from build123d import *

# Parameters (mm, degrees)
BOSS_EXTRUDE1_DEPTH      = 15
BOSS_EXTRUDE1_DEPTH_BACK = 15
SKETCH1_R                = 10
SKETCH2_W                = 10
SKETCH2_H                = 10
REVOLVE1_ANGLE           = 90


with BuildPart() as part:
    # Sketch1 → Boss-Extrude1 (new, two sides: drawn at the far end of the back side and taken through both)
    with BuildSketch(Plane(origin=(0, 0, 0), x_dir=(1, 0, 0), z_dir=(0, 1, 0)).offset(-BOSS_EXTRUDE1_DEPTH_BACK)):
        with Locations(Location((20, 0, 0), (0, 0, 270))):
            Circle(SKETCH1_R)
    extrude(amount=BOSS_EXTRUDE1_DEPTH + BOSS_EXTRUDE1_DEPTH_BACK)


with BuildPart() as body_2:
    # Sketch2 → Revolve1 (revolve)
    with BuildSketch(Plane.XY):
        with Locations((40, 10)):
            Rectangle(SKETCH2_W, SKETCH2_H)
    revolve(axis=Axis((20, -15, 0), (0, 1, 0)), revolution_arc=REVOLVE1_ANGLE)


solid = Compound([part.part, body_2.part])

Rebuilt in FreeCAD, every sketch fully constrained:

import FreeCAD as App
import Part
import Sketcher
from FreeCAD import Vector


def add_polygon(sketch, points):
    """Adds a closed chain of lines whose ends are joined by coincident constraints."""
    first, n = sketch.GeometryCount, len(points)
    for a, b in zip(points, points[1:] + points[:1]):
        sketch.addGeometry(Part.LineSegment(App.Vector(*a, 0), App.Vector(*b, 0)), False)
    for i in range(n):
        sketch.addConstraint(Sketcher.Constraint("Coincident", first + i, 2, first + (i + 1) % n, 1))

doc = App.newDocument("Part")
params = doc.addObject("Spreadsheet::Sheet", "Params")
for row, (alias, value) in enumerate([
    ("sketch1_diameter", "20 mm"),
    ("pad1_length", "15 mm"),
    ("pad1_length2", "15 mm"),
    ("sketch2_width", "10 mm"),
    ("revolution_angle", "90 deg"),
], start=1):
    params.set(f"A{row}", alias)
    params.set(f"B{row}", "=" + value)
    params.setAlias(f"B{row}", alias)

body = doc.addObject("PartDesign::Body", "Body")

sketch1 = doc.addObject("Sketcher::SketchObject", "Sketch")
body.addObject(sketch1)
sketch1.AttachmentSupport = (doc.XZ_Plane, [""])
sketch1.MapMode = "FlatFace"
sketch1.addGeometry(Part.Circle(Vector(20, 0, 0), Vector(0, 0, 1), 10), False)
sketch1.addConstraint([
    Sketcher.Constraint("PointOnObject", 0, 3, -1),
    Sketcher.Constraint("Diameter", 0, 20.0),
    Sketcher.Constraint("DistanceX", -1, 1, 0, 3, 20.0),
])
sketch1.setExpression("Constraints[1]", "Params.sketch1_diameter")
pad1 = doc.addObject("PartDesign::Pad", "Pad")
body.addObject(pad1)
pad1.Profile = sketch1
pad1.Type = "TwoLengths"
pad1.setExpression("Length", "Params.pad1_length")
pad1.setExpression("Length2", "Params.pad1_length2")
pad1.Reversed = True
body2 = doc.addObject("PartDesign::Body", "Body001")

sketch2 = doc.addObject("Sketcher::SketchObject", "Sketch001")
body2.addObject(sketch2)
sketch2.AttachmentSupport = (doc.getObject("XY_Plane001"), [""])
sketch2.MapMode = "FlatFace"
add_polygon(sketch2, [(35, 15), (35, 5), (45, 5), (45, 15)])
sketch2.addGeometry(Part.LineSegment(Vector(20, 5, 0), Vector(20, 15, 0)), True)
sketch2.addConstraint([
    Sketcher.Constraint("Vertical", 0),
    Sketcher.Constraint("Horizontal", 1),
    Sketcher.Constraint("Vertical", 2),
    Sketcher.Constraint("Horizontal", 3),
    Sketcher.Constraint("Vertical", 4),
    Sketcher.Constraint("Horizontal", 1, 2, 4, 1),
    Sketcher.Constraint("Horizontal", 3, 2, 4, 2),
    Sketcher.Constraint("Equal", 3, 0),
    Sketcher.Constraint("DistanceX", 1, 1, 1, 2, 10.0),
    Sketcher.Constraint("DistanceX", -1, 1, 0, 2, 35.0),
    Sketcher.Constraint("DistanceY", -1, 1, 0, 2, 5.0),
    Sketcher.Constraint("DistanceX", -1, 1, 4, 1, 20.0),
])
sketch2.setExpression("Constraints[12]", "Params.sketch2_width")
revolution = doc.addObject("PartDesign::Revolution", "Revolution")
body2.addObject(revolution)
revolution.Profile = sketch2
revolution.ReferenceAxis = (sketch2, ["Axis0"])
revolution.setExpression("Angle", "Params.revolution_angle")

doc.recompute()
